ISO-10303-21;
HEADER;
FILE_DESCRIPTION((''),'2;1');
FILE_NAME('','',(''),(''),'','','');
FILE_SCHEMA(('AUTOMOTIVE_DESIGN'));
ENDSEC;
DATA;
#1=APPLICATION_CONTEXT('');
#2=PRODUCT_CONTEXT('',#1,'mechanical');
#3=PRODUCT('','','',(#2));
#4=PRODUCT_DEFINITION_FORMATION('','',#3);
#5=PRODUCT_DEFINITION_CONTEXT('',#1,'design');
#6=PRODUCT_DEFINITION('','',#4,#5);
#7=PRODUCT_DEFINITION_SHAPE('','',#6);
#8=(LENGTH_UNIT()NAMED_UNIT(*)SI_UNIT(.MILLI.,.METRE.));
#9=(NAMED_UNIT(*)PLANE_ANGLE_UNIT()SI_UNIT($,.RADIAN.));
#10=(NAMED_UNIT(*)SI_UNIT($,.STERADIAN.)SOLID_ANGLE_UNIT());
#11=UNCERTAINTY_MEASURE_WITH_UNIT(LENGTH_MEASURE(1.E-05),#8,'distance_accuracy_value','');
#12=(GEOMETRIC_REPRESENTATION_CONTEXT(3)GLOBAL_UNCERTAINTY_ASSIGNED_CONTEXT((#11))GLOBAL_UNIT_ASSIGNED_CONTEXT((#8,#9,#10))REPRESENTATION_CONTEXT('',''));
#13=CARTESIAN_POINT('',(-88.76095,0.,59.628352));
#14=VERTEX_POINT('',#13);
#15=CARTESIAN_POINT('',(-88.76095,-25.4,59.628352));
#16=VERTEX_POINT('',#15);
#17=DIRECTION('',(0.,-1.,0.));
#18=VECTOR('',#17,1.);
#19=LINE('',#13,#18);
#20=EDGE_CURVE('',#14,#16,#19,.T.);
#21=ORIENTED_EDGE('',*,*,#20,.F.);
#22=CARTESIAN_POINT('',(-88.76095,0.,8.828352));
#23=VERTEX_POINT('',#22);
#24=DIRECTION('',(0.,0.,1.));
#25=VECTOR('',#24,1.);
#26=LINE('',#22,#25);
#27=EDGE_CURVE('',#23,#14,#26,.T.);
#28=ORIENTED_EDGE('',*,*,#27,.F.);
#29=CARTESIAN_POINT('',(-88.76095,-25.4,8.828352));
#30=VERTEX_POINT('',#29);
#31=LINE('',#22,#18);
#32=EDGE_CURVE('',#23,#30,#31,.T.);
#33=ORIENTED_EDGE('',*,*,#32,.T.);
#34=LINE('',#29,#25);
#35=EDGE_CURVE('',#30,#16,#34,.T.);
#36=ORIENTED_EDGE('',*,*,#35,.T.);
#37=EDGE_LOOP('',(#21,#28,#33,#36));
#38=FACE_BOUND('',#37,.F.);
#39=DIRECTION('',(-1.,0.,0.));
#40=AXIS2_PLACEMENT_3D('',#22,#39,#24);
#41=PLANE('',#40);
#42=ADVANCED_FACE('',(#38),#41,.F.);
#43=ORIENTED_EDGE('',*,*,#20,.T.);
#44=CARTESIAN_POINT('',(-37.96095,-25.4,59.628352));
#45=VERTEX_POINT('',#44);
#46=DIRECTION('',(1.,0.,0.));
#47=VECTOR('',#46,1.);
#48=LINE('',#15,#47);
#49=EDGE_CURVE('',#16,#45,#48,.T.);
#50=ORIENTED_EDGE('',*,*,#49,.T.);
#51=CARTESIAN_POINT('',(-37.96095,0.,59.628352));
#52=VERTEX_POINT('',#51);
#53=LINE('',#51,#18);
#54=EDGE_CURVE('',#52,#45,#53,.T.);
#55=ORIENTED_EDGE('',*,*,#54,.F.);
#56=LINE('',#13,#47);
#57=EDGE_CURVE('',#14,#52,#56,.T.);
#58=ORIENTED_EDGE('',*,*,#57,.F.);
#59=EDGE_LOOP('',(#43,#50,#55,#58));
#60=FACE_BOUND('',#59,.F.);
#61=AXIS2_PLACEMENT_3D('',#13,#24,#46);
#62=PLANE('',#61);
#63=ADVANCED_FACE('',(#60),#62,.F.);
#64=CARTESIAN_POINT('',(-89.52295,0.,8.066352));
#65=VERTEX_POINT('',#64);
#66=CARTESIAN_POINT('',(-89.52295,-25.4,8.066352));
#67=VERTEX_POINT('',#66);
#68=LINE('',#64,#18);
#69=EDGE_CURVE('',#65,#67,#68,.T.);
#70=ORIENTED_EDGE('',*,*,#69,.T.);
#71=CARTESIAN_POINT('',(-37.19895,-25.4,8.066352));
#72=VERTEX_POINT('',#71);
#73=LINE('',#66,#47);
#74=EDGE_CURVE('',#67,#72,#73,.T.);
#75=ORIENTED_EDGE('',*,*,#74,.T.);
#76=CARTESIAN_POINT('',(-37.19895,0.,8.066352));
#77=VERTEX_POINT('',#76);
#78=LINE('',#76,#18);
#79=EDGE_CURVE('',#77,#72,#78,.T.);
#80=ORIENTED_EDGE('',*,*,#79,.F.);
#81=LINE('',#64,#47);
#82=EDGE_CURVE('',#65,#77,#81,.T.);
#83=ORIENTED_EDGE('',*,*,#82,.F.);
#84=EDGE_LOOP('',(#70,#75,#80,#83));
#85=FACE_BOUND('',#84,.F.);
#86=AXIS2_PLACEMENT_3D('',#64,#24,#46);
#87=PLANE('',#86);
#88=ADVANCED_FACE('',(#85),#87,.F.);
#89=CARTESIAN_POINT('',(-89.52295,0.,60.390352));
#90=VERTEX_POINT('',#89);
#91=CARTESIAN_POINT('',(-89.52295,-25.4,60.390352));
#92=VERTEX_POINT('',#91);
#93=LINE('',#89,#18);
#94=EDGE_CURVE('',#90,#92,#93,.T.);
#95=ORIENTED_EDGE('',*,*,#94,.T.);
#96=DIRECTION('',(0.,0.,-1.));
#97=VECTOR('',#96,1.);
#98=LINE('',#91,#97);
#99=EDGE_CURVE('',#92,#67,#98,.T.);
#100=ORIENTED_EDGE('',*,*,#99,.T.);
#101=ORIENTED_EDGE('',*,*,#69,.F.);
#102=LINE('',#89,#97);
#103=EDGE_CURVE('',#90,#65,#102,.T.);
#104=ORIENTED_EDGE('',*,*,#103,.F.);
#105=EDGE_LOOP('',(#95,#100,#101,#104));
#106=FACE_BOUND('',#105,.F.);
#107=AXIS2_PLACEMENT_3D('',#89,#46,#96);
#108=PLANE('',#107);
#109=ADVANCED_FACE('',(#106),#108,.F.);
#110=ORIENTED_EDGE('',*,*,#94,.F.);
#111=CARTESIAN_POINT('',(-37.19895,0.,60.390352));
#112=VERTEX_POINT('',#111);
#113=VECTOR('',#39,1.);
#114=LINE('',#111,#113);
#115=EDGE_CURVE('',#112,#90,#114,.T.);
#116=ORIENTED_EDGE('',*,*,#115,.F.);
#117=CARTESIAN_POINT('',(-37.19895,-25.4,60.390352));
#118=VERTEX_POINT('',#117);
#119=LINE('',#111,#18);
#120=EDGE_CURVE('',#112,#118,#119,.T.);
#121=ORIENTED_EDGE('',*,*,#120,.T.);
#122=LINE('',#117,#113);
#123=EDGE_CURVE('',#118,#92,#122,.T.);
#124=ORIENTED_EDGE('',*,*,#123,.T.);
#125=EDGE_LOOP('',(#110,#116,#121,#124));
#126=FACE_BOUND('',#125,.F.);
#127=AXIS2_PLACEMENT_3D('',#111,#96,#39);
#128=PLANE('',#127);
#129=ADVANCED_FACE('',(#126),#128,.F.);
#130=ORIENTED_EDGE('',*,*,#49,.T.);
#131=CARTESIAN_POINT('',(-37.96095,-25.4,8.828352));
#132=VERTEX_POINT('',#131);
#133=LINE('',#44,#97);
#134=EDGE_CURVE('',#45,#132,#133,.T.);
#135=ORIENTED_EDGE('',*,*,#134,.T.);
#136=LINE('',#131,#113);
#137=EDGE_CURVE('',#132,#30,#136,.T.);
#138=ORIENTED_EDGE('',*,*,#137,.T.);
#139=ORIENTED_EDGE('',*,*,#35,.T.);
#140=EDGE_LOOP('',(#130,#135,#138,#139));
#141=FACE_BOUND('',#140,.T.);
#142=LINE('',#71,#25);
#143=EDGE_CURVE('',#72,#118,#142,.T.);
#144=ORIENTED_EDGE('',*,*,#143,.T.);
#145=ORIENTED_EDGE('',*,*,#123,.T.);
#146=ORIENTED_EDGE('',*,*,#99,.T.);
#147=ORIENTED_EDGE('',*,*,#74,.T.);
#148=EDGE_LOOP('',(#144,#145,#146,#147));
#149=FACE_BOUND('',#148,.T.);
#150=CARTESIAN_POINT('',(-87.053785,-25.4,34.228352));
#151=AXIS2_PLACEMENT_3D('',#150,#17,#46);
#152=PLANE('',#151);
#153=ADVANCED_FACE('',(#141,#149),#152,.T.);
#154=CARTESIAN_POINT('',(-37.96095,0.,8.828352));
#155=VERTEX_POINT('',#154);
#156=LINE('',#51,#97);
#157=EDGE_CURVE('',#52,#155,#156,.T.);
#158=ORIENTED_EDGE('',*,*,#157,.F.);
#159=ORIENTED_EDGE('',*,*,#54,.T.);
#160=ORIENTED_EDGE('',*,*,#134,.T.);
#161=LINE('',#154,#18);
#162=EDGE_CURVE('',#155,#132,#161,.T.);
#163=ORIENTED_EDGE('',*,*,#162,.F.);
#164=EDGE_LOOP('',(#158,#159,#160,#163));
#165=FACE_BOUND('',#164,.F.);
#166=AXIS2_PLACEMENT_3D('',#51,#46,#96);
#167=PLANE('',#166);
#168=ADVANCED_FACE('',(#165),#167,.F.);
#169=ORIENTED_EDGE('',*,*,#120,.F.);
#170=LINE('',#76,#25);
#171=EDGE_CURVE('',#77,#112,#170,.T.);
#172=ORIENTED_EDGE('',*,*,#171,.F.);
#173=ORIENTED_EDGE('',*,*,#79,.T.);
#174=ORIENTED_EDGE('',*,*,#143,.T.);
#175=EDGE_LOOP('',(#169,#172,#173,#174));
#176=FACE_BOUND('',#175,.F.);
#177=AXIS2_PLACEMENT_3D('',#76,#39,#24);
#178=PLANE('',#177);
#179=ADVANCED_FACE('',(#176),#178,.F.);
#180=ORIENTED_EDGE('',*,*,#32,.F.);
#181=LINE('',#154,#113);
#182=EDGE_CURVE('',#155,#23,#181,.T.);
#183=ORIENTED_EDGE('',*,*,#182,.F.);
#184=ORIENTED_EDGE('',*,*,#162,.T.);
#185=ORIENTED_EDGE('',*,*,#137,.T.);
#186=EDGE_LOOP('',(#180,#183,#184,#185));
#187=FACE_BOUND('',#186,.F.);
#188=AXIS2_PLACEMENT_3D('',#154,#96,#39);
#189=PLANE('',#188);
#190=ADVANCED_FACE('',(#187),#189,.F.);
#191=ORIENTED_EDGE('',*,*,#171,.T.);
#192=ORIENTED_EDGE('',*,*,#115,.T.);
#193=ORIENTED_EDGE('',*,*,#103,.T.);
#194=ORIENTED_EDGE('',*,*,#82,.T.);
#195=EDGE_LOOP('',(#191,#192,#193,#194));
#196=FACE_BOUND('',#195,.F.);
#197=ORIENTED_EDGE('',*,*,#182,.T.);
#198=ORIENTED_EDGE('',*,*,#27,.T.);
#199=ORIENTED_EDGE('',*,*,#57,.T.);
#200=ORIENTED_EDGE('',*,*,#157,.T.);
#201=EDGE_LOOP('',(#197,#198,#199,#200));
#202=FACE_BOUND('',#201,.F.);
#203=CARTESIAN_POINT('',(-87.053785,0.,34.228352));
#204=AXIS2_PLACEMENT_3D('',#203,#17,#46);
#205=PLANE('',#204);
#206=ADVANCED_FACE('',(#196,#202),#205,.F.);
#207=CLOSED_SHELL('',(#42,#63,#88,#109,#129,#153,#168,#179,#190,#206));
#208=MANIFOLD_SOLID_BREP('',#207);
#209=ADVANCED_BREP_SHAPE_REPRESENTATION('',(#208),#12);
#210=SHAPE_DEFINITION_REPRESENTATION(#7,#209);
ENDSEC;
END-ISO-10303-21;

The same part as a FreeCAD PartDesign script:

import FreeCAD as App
import Part
import Sketcher
Q = App.Units.Quantity


def add_polygon(sketch, points):
    """Adds a closed chain of lines whose ends are joined by coincident constraints."""
    first, n = sketch.GeometryCount, len(points)
    for a, b in zip(points, points[1:] + points[:1]):
        sketch.addGeometry(Part.LineSegment(App.Vector(*a, 0), App.Vector(*b, 0)), False)
    for i in range(n):
        sketch.addConstraint(Sketcher.Constraint("Coincident", first + i, 2, first + (i + 1) % n, 1))

doc = App.newDocument("Part")
params = doc.addObject("Spreadsheet::Sheet", "Params")
for row, (alias, value) in enumerate([
    ("sketch1_width", "2 in"),
    ("sketch1_width2", "2.06 in"),
    ("pad1_length", "1 in"),
], start=1):
    params.set(f"A{row}", alias)
    params.set(f"B{row}", "=" + value)
    params.setAlias(f"B{row}", alias)

body = doc.addObject("PartDesign::Body", "Body")

# Sketch on XZ plane
sketch1 = doc.addObject("Sketcher::SketchObject", "Sketch")
body.addObject(sketch1)
sketch1.AttachmentSupport = (doc.XZ_Plane, [""])
sketch1.MapMode = "FlatFace"
add_polygon(sketch1, [(-37.19895, 8.066352), (-37.19895, 60.390352), (-89.52295, 60.390352), (-89.52295, 8.066352)])  # lines 0-3
add_polygon(sketch1, [(-88.76095, 8.828352), (-88.76095, 59.628352), (-37.96095, 59.628352), (-37.96095, 8.828352)])  # lines 4-7
sketch1.addConstraint(Sketcher.Constraint("Vertical", 0))
sketch1.addConstraint(Sketcher.Constraint("Horizontal", 1))
sketch1.addConstraint(Sketcher.Constraint("Vertical", 2))
sketch1.addConstraint(Sketcher.Constraint("Horizontal", 3))
sketch1.addConstraint(Sketcher.Constraint("Vertical", 4))
sketch1.addConstraint(Sketcher.Constraint("Horizontal", 5))
sketch1.addConstraint(Sketcher.Constraint("Vertical", 6))
sketch1.addConstraint(Sketcher.Constraint("Horizontal", 7))
sketch1.addConstraint(Sketcher.Constraint("Equal", 3, 0))
sketch1.addConstraint(Sketcher.Constraint("Equal", 7, 4))
sketch1.addConstraint(Sketcher.Constraint("DistanceX", 5, 1, 5, 2, Q("2 in")))
sketch1.addConstraint(Sketcher.Constraint("DistanceX", 1, 2, 1, 1, Q("2.06 in")))
sketch1.addConstraint(Sketcher.Constraint("DistanceX", 1, 2, 4, 2, Q("0.03 in")))
sketch1.addConstraint(Sketcher.Constraint("DistanceY", 4, 2, 1, 2, Q("0.03 in")))
sketch1.addConstraint(Sketcher.Constraint("DistanceX", 0, 2, -1, 1, Q("37.19895 mm")))
sketch1.addConstraint(Sketcher.Constraint("DistanceY", -1, 1, 0, 2, Q("60.390352 mm")))
sketch1.setExpression("Constraints[18]", "Params.sketch1_width")
sketch1.setExpression("Constraints[19]", "Params.sketch1_width2")
pad1 = doc.addObject("PartDesign::Pad", "Pad")
body.addObject(pad1)
pad1.Profile = sketch1
pad1.setExpression("Length", "Params.pad1_length")

doc.recompute()
